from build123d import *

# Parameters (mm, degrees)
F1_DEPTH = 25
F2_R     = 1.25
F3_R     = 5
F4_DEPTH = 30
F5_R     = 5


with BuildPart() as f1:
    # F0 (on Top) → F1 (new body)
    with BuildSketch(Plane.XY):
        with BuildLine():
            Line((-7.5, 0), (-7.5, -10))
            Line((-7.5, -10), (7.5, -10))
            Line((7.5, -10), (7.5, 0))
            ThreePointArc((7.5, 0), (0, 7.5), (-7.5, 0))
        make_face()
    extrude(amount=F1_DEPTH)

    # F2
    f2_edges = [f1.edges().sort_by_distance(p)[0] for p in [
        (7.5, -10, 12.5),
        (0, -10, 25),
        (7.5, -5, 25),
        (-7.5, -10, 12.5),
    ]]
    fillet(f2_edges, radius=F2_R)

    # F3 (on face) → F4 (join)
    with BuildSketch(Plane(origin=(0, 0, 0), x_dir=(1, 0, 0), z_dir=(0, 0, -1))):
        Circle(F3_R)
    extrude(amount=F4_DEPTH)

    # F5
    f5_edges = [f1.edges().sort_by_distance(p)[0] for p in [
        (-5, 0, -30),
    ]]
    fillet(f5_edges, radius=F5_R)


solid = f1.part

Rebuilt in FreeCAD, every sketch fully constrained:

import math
import FreeCAD as App
import Part
import Sketcher


def edges_at(feature, points):
    """Names of the edges that pass closest to the given points."""
    edges = feature.Shape.Edges
    near = lambda p: min(range(len(edges)), key=lambda i: edges[i].distToShape(Part.Vertex(*p))[0])
    return sorted({f"Edge{near(p) + 1}" for p in points})

doc = App.newDocument("Part")
body = doc.addObject("PartDesign::Body", "Body")

# Sketch on XY plane
sketch1 = body.newObject("Sketcher::SketchObject", "Sketch")
sketch1.AttachmentSupport = (doc.getObject("XY_Plane"), [""])
sketch1.MapMode = "FlatFace"
sketch1.addGeometry(Part.LineSegment(App.Vector(-7.5, 0, 0), App.Vector(-7.5, -10, 0)), False)
sketch1.addGeometry(Part.LineSegment(App.Vector(-7.5, -10, 0), App.Vector(7.5, -10, 0)), False)
sketch1.addGeometry(Part.LineSegment(App.Vector(7.5, -10, 0), App.Vector(7.5, 0, 0)), False)
sketch1.addGeometry(Part.ArcOfCircle(Part.Circle(App.Vector(0, 0, 0), App.Vector(0, 0, 1), 7.5), math.radians(0), math.radians(180)), False)
sketch1.addConstraint(Sketcher.Constraint("Coincident", 0, 2, 1, 1))
sketch1.addConstraint(Sketcher.Constraint("Coincident", 1, 2, 2, 1))
sketch1.addConstraint(Sketcher.Constraint("Tangent", 2, 2, 3, 1))
sketch1.addConstraint(Sketcher.Constraint("Tangent", 3, 2, 0, 1))
sketch1.addConstraint(Sketcher.Constraint("Vertical", 0))
sketch1.addConstraint(Sketcher.Constraint("Horizontal", 1))
sketch1.addConstraint(Sketcher.Constraint("Vertical", 2))
sketch1.addConstraint(Sketcher.Constraint("Coincident", 3, 3, -1, 1))
sketch1.addConstraint(Sketcher.Constraint("Radius", 3, 7.5))
sketch1.addConstraint(Sketcher.Constraint("DistanceY", 0, 2, 0, 1, 10.0))
pad1 = body.newObject("PartDesign::Pad", "Pad")
pad1.Profile = sketch1
pad1.Length = 25
doc.recompute()

fillet = body.newObject("PartDesign::Fillet", "Fillet")
fillet.Base = (pad1, edges_at(pad1, [
    (7.5, -10, 12.5),
    (0, -10, 25),
    (7.5, -5, 25),
    (-7.5, -10, 12.5),
]))
fillet.Radius = 1.25

# Sketch on XY plane
sketch2 = body.newObject("Sketcher::SketchObject", "Sketch001")
sketch2.AttachmentSupport = (doc.getObject("XY_Plane"), [""])
sketch2.MapMode = "FlatFace"
sketch2.addGeometry(Part.Circle(App.Vector(0, 0, 0), App.Vector(0, 0, 1), 5), False)
sketch2.addConstraint(Sketcher.Constraint("Coincident", 0, 3, -1, 1))
sketch2.addConstraint(Sketcher.Constraint("Diameter", 0, 10.0))
pad2 = body.newObject("PartDesign::Pad", "Pad001")
pad2.Profile = sketch2
pad2.Length = 30
pad2.Reversed = True
doc.recompute()

fillet2 = body.newObject("PartDesign::Fillet", "Fillet001")
fillet2.Base = (pad2, edges_at(pad2, [(-5, 0, -30)]))
fillet2.Radius = 5

doc.recompute()
